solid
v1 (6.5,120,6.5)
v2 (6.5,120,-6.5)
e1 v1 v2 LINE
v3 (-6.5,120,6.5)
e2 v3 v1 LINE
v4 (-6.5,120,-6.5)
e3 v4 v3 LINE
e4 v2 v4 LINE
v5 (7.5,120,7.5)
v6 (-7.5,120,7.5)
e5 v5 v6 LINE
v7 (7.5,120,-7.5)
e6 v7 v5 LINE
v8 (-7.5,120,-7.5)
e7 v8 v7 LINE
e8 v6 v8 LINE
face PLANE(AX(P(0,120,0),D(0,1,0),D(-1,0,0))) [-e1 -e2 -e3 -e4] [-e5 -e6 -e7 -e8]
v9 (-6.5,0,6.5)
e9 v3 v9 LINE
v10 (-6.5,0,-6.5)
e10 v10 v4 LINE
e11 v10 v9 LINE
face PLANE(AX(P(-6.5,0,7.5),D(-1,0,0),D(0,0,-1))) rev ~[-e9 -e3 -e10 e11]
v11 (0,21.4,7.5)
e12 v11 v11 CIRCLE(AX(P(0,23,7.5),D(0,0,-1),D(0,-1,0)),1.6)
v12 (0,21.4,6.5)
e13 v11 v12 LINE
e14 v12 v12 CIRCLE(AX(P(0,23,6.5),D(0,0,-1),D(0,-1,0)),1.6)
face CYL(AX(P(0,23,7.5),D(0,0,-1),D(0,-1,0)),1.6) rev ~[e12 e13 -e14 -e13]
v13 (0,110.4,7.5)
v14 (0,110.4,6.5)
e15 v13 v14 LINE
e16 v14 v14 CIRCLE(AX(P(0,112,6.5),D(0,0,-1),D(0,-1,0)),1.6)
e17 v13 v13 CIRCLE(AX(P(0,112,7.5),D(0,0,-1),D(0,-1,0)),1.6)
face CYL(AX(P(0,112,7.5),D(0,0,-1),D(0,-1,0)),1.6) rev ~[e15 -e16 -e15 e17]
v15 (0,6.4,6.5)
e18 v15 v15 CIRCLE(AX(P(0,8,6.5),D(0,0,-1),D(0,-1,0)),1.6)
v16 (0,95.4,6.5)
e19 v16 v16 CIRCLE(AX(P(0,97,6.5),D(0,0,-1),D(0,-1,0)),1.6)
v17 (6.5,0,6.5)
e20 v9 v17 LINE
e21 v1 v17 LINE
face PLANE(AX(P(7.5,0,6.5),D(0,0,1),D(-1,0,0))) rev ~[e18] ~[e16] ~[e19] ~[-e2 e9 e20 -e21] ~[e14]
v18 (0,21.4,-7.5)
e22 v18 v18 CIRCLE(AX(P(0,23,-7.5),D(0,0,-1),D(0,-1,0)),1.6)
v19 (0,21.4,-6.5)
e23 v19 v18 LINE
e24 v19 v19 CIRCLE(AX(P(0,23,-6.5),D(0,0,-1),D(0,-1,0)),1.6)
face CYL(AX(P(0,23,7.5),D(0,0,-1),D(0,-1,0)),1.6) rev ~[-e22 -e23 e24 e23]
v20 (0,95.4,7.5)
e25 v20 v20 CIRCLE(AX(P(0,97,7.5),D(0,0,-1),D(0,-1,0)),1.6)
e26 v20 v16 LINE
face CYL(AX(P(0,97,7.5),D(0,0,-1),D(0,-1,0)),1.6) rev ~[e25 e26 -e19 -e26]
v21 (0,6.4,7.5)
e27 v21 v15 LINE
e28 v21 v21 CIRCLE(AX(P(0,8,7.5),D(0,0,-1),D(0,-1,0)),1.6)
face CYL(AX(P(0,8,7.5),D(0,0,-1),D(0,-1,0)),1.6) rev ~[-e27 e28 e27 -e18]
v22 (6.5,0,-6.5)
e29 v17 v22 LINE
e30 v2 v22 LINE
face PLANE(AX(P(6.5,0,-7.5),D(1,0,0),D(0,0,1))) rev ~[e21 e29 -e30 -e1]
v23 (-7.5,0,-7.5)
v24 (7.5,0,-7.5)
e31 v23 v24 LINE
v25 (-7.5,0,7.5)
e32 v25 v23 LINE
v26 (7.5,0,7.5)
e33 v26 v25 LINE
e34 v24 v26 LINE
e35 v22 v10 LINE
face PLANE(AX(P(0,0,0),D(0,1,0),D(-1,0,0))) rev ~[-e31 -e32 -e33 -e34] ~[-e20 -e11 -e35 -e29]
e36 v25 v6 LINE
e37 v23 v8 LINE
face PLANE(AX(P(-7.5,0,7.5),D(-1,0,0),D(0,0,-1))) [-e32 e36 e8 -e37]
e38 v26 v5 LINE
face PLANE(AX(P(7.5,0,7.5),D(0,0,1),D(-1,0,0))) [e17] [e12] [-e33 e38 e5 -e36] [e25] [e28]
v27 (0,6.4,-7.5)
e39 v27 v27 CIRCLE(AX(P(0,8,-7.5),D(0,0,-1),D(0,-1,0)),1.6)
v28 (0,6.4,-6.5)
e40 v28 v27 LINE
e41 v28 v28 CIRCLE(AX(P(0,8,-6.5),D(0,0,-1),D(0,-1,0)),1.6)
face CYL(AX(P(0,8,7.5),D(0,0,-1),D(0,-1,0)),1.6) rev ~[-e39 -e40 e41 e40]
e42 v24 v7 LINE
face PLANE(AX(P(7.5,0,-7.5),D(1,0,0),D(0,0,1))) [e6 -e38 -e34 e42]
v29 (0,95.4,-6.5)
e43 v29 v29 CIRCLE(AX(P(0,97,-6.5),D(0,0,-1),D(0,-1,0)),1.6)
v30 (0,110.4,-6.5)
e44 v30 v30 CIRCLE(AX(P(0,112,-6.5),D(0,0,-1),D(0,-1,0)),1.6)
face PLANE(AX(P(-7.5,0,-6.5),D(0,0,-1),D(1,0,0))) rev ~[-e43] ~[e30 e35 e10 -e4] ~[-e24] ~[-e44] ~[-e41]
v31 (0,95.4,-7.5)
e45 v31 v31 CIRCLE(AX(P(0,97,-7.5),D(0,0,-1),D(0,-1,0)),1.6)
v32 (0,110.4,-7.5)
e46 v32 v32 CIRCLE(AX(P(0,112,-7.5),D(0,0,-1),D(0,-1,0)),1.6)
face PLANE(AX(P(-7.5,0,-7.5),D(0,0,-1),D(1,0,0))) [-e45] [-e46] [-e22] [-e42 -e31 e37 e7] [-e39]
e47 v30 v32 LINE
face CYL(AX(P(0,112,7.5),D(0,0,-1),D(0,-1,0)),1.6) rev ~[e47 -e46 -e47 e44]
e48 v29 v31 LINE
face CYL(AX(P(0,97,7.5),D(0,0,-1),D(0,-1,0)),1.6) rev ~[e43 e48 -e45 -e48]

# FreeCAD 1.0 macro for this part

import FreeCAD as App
import Part
import Sketcher
from FreeCAD import Vector
Q = App.Units.Quantity


def faces_at(feature, points):
    """Names of the faces that lie closest to the given points."""
    faces = feature.Shape.Faces
    near = lambda p: min(range(len(faces)), key=lambda i: faces[i].distToShape(Part.Vertex(*p))[0])
    return sorted({f"Face{near(p) + 1}" for p in points})

doc = App.newDocument("Part")
params = doc.addObject("Spreadsheet::Sheet", "Params")
for row, (alias, value) in enumerate([
    ("sketch1_width", "15 mm"),
    ("pad1_length", "120 mm"),
    ("thickness_wall", "1 mm"),
    ("sketch2_diameter", "3.2 mm"),
    ("hole_diameter", "3.2 mm"),
], start=1):
    params.set(f"A{row}", alias)
    params.set(f"B{row}", "=" + value)
    params.setAlias(f"B{row}", alias)

body = doc.addObject("PartDesign::Body", "Body")

sketch1 = doc.addObject("Sketcher::SketchObject", "Sketch")
body.addObject(sketch1)
sketch1.AttachmentSupport = (doc.XZ_Plane, [""])
sketch1.MapMode = "FlatFace"
sketch1.addGeometry([
    Part.LineSegment(Vector(8, -8, 0), Vector(-8, -8, 0)),
    Part.LineSegment(Vector(-8, -8, 0), Vector(-8, 8, 0)),
    Part.LineSegment(Vector(-8, 8, 0), Vector(8, 8, 0)),
    Part.LineSegment(Vector(8, 8, 0), Vector(8, -8, 0)),
], False)
sketch1.addConstraint([
    Sketcher.Constraint("Coincident", 0, 2, 1, 1),
    Sketcher.Constraint("Coincident", 1, 2, 2, 1),
    Sketcher.Constraint("Coincident", 2, 2, 3, 1),
    Sketcher.Constraint("Coincident", 3, 2, 0, 1),
    Sketcher.Constraint("Horizontal", 0),
    Sketcher.Constraint("Vertical", 1),
    Sketcher.Constraint("Horizontal", 2),
    Sketcher.Constraint("Vertical", 3),
    Sketcher.Constraint("Symmetric", 0, 2, 2, 2, -1, 1),
    Sketcher.Constraint("Equal", 2, 1),
    Sketcher.Constraint("DistanceX", 0, 2, 0, 1, Q("15 mm")),
])
sketch1.setExpression("Constraints[10]", "Params.sketch1_width")
pad1 = doc.addObject("PartDesign::Pad", "Pad")
body.addObject(pad1)
pad1.Profile = sketch1
pad1.setExpression("Length", "Params.pad1_length")
pad1.Reversed = True
doc.recompute()

thickness = doc.addObject("PartDesign::Thickness", "Thickness")
body.addObject(thickness)
thickness.Base = (pad1, faces_at(pad1, [(-2.5, 0, -2.5), (-2.5, 120, -2.5)]))
thickness.setExpression("Value", "Params.thickness_wall")
thickness.Reversed = True
thickness.Join = "Intersection"

sketch2 = doc.addObject("Sketcher::SketchObject", "Sketch001")
body.addObject(sketch2)
sketch2.AttachmentSupport = (doc.XY_Plane, [""])
sketch2.MapMode = "FlatFace"
sketch2.AttachmentOffset = App.Placement(Vector(0, 0, 7.5), App.Rotation())
sketch2.addGeometry([
    Part.Circle(Vector(0, 8, 0), Vector(0, 0, 1), 1.6),
    Part.Circle(Vector(0, 23, 0), Vector(0, 0, 1), 1.6),
    Part.Circle(Vector(0, 112, 0), Vector(0, 0, 1), 1.6),
    Part.Circle(Vector(0, 97, 0), Vector(0, 0, 1), 1.6),
], False)
sketch2.addConstraint([
    Sketcher.Constraint("Equal", 0, 1),
    Sketcher.Constraint("Equal", 1, 2),
    Sketcher.Constraint("Equal", 2, 3),
    Sketcher.Constraint("PointOnObject", 0, 3, -2),
    Sketcher.Constraint("PointOnObject", 1, 3, -2),
    Sketcher.Constraint("PointOnObject", 2, 3, -2),
    Sketcher.Constraint("PointOnObject", 3, 3, -2),
    Sketcher.Constraint("Diameter", 0, Q("3.2 mm")),
    Sketcher.Constraint("DistanceY", -1, 1, 0, 3, Q("8 mm")),
    Sketcher.Constraint("DistanceY", -1, 1, 1, 3, Q("23 mm")),
    Sketcher.Constraint("DistanceY", -1, 1, 2, 3, Q("112 mm")),
    Sketcher.Constraint("DistanceY", -1, 1, 3, 3, Q("97 mm")),
])
sketch2.setExpression("Constraints[7]", "Params.sketch2_diameter")
doc.recompute()
hole = doc.addObject("PartDesign::Hole", "Hole")
body.addObject(hole)
hole.Profile = sketch2
hole.ThreadType = "None"
hole.setExpression("Diameter", "Params.hole_diameter")
hole.DepthType = "ThroughAll"

doc.recompute()
